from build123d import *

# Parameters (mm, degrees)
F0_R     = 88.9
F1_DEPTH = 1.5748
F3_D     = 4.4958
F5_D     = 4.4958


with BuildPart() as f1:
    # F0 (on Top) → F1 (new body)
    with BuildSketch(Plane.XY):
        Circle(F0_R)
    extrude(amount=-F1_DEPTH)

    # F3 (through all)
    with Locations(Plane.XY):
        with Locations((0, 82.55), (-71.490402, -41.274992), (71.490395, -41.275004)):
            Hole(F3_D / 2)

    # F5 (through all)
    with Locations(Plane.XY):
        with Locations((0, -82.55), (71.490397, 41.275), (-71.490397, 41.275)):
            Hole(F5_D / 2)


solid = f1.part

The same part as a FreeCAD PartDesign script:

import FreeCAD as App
import Part
import Sketcher
from FreeCAD import Vector
Q = App.Units.Quantity

doc = App.newDocument("Part")
body = doc.addObject("PartDesign::Body", "Body")

# Sketch on XY plane
sketch1 = doc.addObject("Sketcher::SketchObject", "Sketch")
body.addObject(sketch1)
sketch1.AttachmentSupport = (doc.XY_Plane, [""])
sketch1.MapMode = "FlatFace"
sketch1.addGeometry(Part.Circle(Vector(0, 0, 0), Vector(0, 0, 1), 89), False)
sketch1.addConstraint([
    Sketcher.Constraint("Coincident", 0, 3, -1, 1),
    Sketcher.Constraint("Diameter", 0, Q("7 in")),
])
pad1 = doc.addObject("PartDesign::Pad", "Pad")
body.addObject(pad1)
pad1.Profile = sketch1
pad1.Length = Q("0.062 in")
pad1.Reversed = True

# Sketch on XY plane
sketch2 = doc.addObject("Sketcher::SketchObject", "Sketch001")
body.addObject(sketch2)
sketch2.AttachmentSupport = (doc.XY_Plane, [""])
sketch2.MapMode = "FlatFace"
sketch2.addGeometry([
    Part.Circle(Vector(0, 82.5, 0), Vector(0, 0, 1), 2.2),
    Part.Circle(Vector(-71.5, -41.3, 0), Vector(0, 0, 1), 2.2),
    Part.Circle(Vector(71.5, -41.3, 0), Vector(0, 0, 1), 2.2),
], False)
sketch2.addConstraint([
    Sketcher.Constraint("Equal", 0, 1),
    Sketcher.Constraint("Equal", 1, 2),
    Sketcher.Constraint("PointOnObject", 0, 3, -2),
    Sketcher.Constraint("Diameter", 0, Q("0.177 in")),
    Sketcher.Constraint("DistanceY", -1, 1, 0, 3, Q("3.25 in")),
    Sketcher.Constraint("DistanceY", 2, 3, -1, 1, Q("1.6250002 in")),
    Sketcher.Constraint("DistanceY", 1, 3, -1, 1, Q("41.274992 mm")),
    Sketcher.Constraint("DistanceX", 1, 3, -1, 1, Q("71.490402 mm")),
    Sketcher.Constraint("DistanceX", -1, 1, 2, 3, Q("71.490395 mm")),
])
doc.recompute()
hole = doc.addObject("PartDesign::Hole", "Hole")
body.addObject(hole)
hole.Profile = sketch2
hole.ThreadType = "None"
hole.Diameter = Q("0.177 in")
hole.DepthType = "ThroughAll"

# Sketch on XY plane
sketch3 = doc.addObject("Sketcher::SketchObject", "Sketch002")
body.addObject(sketch3)
sketch3.AttachmentSupport = (doc.XY_Plane, [""])
sketch3.MapMode = "FlatFace"
sketch3.addGeometry([
    Part.Circle(Vector(0, -82.5, 0), Vector(0, 0, 1), 2.2),
    Part.Circle(Vector(71.5, 41.3, 0), Vector(0, 0, 1), 2.2),
    Part.Circle(Vector(-71.5, 41.3, 0), Vector(0, 0, 1), 2.2),
], False)
sketch3.addConstraint([
    Sketcher.Constraint("Equal", 0, 1),
    Sketcher.Constraint("Equal", 1, 2),
    Sketcher.Constraint("Symmetric", 1, 3, 2, 3, -2),
    Sketcher.Constraint("PointOnObject", 0, 3, -2),
    Sketcher.Constraint("Diameter", 0, Q("0.177 in")),
    Sketcher.Constraint("DistanceY", 0, 3, -1, 1, Q("3.25 in")),
    Sketcher.Constraint("DistanceY", -1, 1, 1, 3, Q("1.625 in")),
    Sketcher.Constraint("DistanceX", -1, 1, 1, 3, Q("71.490397 mm")),
])
doc.recompute()
hole2 = doc.addObject("PartDesign::Hole", "Hole001")
body.addObject(hole2)
hole2.Profile = sketch3
hole2.ThreadType = "None"
hole2.Diameter = Q("0.177 in")
hole2.DepthType = "ThroughAll"

doc.recompute()
